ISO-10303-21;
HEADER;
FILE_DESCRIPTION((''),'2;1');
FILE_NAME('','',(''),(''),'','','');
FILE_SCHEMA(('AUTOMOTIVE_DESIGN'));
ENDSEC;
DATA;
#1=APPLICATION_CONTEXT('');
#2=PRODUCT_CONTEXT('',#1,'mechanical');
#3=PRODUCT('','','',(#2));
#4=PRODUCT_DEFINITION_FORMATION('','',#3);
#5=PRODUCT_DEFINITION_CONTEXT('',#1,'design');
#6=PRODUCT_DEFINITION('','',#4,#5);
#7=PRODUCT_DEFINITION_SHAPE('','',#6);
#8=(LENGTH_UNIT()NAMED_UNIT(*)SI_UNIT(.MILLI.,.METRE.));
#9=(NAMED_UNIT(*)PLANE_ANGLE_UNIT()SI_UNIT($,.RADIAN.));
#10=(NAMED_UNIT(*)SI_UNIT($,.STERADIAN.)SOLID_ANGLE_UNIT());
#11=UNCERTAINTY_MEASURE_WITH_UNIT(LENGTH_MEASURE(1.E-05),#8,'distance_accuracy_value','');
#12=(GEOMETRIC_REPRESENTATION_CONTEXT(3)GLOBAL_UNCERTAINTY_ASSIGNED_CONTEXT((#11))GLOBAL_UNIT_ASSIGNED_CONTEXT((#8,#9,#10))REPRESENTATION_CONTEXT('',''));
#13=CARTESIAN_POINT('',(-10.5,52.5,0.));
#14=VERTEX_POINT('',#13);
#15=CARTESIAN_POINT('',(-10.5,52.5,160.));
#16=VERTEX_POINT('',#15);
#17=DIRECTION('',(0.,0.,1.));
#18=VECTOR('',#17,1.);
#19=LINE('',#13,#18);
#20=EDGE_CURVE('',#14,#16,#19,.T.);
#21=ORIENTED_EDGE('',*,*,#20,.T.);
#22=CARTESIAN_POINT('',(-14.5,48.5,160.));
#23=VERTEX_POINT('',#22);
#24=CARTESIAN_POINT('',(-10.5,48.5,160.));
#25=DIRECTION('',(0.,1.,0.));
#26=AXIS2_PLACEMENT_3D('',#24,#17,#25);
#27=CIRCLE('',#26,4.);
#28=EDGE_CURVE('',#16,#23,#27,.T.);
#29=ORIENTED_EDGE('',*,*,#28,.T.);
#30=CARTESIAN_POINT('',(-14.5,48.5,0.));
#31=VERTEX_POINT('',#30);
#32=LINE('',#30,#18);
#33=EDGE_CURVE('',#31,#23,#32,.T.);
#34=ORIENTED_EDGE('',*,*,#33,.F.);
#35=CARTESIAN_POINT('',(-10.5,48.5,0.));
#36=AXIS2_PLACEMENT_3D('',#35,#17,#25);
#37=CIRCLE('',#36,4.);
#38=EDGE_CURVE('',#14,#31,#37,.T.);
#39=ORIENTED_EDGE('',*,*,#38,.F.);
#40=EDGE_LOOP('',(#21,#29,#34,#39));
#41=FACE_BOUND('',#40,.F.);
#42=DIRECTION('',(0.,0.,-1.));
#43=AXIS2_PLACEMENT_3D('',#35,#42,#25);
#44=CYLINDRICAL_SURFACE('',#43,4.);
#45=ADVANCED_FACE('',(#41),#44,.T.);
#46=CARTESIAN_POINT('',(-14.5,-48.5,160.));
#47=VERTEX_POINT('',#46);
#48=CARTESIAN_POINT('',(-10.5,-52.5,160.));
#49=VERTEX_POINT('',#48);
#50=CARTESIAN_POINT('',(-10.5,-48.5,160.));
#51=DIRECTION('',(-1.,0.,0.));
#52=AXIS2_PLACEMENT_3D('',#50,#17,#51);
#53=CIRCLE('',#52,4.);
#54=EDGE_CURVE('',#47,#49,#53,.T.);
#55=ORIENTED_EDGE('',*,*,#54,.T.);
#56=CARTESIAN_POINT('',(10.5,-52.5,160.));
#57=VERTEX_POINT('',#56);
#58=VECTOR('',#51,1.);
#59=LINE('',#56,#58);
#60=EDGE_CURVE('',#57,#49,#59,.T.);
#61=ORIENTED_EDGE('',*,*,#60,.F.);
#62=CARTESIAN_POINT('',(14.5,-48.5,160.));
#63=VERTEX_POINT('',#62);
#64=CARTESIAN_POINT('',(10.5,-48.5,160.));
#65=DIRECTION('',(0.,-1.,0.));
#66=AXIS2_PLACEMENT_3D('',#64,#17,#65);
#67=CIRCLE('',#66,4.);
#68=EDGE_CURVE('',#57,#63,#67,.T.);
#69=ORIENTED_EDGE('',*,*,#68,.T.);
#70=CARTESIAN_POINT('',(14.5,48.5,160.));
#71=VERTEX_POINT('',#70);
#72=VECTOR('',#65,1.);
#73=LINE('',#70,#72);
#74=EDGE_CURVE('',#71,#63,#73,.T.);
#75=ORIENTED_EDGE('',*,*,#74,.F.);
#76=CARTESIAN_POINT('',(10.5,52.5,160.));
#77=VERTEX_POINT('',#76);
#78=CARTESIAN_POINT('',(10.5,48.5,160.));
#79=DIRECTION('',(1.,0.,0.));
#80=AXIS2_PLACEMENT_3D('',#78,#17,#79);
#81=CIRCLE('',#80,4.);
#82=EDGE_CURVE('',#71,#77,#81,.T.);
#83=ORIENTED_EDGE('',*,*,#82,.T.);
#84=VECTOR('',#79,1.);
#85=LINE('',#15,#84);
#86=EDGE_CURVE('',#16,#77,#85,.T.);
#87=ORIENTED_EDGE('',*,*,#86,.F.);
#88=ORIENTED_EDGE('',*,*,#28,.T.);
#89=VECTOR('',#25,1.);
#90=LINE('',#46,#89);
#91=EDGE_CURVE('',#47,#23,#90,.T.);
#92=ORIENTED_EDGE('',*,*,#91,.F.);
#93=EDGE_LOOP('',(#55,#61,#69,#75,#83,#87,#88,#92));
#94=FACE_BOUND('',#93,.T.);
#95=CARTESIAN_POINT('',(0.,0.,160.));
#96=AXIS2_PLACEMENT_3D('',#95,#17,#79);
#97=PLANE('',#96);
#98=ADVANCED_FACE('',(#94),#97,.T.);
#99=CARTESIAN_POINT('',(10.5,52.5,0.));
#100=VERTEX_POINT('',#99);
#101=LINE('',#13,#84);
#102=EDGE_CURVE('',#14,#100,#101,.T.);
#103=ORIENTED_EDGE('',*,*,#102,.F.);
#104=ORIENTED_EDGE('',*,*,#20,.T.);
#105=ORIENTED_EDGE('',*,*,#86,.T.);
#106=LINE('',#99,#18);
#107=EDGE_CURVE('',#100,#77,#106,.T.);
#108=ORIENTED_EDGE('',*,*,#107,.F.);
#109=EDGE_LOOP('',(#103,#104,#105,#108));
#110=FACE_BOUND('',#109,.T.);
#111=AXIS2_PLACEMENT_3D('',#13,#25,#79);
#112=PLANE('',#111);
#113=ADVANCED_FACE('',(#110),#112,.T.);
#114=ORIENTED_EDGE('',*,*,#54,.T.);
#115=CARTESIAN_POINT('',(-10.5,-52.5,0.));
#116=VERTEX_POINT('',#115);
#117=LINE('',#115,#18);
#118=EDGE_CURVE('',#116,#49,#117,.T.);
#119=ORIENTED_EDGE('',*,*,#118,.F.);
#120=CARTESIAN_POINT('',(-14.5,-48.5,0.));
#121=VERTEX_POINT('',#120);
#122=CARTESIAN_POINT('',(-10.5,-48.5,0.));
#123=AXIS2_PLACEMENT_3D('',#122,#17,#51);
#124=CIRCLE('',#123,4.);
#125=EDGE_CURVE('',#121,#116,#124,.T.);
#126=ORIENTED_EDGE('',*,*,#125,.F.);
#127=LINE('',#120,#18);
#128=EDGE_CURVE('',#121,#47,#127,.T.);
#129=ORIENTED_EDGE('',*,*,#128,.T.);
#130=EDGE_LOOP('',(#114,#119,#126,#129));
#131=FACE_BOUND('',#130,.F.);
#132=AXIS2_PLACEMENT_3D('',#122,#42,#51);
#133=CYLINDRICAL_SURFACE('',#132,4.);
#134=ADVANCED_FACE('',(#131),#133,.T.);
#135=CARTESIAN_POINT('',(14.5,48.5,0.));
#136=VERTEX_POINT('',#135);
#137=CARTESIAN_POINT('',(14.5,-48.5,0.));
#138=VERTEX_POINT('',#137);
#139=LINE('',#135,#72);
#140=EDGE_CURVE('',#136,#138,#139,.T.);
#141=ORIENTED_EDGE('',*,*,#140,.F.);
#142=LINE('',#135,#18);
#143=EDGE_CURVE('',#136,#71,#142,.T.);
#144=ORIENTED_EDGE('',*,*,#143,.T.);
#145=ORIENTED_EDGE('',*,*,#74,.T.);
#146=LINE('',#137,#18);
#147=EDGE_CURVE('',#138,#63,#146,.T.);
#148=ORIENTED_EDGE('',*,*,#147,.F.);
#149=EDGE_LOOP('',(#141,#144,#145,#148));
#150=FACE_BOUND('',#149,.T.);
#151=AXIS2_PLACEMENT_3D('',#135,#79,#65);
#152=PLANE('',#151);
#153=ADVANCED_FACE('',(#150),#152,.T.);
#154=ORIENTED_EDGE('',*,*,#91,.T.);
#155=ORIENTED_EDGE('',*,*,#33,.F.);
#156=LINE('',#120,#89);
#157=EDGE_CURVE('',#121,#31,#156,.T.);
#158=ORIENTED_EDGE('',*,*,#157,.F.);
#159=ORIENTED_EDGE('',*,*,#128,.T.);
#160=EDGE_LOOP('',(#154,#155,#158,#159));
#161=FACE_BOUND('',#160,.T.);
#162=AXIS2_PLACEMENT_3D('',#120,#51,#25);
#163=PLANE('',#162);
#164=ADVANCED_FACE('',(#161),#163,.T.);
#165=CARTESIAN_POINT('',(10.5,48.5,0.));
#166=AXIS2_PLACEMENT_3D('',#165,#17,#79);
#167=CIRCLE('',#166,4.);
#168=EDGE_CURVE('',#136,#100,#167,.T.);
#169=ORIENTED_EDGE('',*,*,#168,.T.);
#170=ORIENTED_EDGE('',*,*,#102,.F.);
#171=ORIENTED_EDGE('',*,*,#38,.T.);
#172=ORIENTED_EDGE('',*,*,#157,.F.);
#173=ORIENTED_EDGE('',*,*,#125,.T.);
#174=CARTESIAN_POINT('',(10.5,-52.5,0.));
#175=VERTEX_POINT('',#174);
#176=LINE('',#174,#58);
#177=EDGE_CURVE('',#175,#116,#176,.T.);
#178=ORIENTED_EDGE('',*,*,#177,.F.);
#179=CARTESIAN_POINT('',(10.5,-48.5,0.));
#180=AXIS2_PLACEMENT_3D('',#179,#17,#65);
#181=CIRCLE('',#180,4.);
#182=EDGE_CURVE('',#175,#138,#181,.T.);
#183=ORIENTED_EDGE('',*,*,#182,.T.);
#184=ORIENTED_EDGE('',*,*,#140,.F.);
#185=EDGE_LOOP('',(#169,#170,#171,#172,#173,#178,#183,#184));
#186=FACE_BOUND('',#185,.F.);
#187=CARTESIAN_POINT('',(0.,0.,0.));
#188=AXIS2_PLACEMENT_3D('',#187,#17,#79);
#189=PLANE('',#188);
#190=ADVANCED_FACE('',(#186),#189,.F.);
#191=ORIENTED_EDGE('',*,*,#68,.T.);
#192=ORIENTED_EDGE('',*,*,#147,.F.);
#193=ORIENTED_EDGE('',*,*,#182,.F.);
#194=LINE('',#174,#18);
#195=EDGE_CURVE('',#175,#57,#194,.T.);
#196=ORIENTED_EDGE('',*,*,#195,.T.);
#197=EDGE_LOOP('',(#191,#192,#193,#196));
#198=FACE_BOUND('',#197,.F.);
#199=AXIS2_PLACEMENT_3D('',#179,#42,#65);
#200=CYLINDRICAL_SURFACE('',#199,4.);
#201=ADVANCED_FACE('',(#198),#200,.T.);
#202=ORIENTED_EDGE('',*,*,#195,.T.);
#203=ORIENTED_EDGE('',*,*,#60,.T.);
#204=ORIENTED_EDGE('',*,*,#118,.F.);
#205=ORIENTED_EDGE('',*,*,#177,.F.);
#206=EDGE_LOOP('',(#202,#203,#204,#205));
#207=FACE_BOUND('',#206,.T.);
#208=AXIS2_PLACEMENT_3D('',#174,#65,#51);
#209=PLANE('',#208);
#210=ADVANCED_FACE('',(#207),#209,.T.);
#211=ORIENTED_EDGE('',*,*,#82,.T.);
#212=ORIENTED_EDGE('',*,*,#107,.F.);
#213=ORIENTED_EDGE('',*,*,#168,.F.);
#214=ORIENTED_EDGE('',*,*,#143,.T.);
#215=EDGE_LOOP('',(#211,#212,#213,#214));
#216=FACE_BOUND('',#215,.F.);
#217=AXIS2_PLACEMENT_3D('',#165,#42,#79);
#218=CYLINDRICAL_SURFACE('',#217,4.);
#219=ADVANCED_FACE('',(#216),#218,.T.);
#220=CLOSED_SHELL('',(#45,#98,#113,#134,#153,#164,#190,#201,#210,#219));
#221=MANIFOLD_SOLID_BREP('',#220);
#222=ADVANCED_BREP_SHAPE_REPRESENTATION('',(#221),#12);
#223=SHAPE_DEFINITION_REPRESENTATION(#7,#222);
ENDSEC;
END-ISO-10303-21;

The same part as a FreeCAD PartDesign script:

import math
import FreeCAD as App
import Part
import Sketcher
from FreeCAD import Vector
Q = App.Units.Quantity

doc = App.newDocument("Part")
params = doc.addObject("Spreadsheet::Sheet", "Params")
for row, (alias, value) in enumerate([
    ("sketch1_radius", "4 mm"),
    ("sketch1_height", "97 mm"),
    ("pad1_length", "160 mm"),
], start=1):
    params.set(f"A{row}", alias)
    params.set(f"B{row}", "=" + value)
    params.setAlias(f"B{row}", alias)

body = doc.addObject("PartDesign::Body", "Body")

# Sketch on XY plane
sketch1 = doc.addObject("Sketcher::SketchObject", "Sketch")
body.addObject(sketch1)
sketch1.AttachmentSupport = (doc.XY_Plane, [""])
sketch1.MapMode = "FlatFace"
sketch1.addGeometry(Part.LineSegment(Vector(10.5, 52.5, 0), Vector(-10.5, 52.5, 0)), False)
sketch1.addGeometry(Part.ArcOfCircle(Part.Circle(Vector(-10.5, 48.5, 0), Vector(0, 0, 1), 4), math.radians(90), math.radians(180)), False)
sketch1.addGeometry(Part.LineSegment(Vector(-14.5, 48.5, 0), Vector(-14.5, -48.5, 0)), False)
sketch1.addGeometry(Part.ArcOfCircle(Part.Circle(Vector(-10.5, -48.5, 0), Vector(0, 0, 1), 4), math.radians(180), math.radians(270)), False)
sketch1.addGeometry(Part.LineSegment(Vector(-10.5, -52.5, 0), Vector(10.5, -52.5, 0)), False)
sketch1.addGeometry(Part.ArcOfCircle(Part.Circle(Vector(10.5, -48.5, 0), Vector(0, 0, 1), 4), math.radians(-90), math.radians(0)), False)
sketch1.addGeometry(Part.LineSegment(Vector(14.5, -48.5, 0), Vector(14.5, 48.5, 0)), False)
sketch1.addGeometry(Part.ArcOfCircle(Part.Circle(Vector(10.5, 48.5, 0), Vector(0, 0, 1), 4), math.radians(0), math.radians(90)), False)
sketch1.addConstraint(Sketcher.Constraint("Tangent", 0, 2, 1, 1))
sketch1.addConstraint(Sketcher.Constraint("Tangent", 1, 2, 2, 1))
sketch1.addConstraint(Sketcher.Constraint("Tangent", 2, 2, 3, 1))
sketch1.addConstraint(Sketcher.Constraint("Tangent", 3, 2, 4, 1))
sketch1.addConstraint(Sketcher.Constraint("Tangent", 4, 2, 5, 1))
sketch1.addConstraint(Sketcher.Constraint("Tangent", 5, 2, 6, 1))
sketch1.addConstraint(Sketcher.Constraint("Tangent", 6, 2, 7, 1))
sketch1.addConstraint(Sketcher.Constraint("Tangent", 7, 2, 0, 1))
sketch1.addConstraint(Sketcher.Constraint("Horizontal", 0))
sketch1.addConstraint(Sketcher.Constraint("Vertical", 2))
sketch1.addConstraint(Sketcher.Constraint("Horizontal", 4))
sketch1.addConstraint(Sketcher.Constraint("Vertical", 6))
sketch1.addConstraint(Sketcher.Constraint("Equal", 1, 3))
sketch1.addConstraint(Sketcher.Constraint("Equal", 3, 5))
sketch1.addConstraint(Sketcher.Constraint("Equal", 5, 7))
sketch1.addConstraint(Sketcher.Constraint("Symmetric", 1, 3, 5, 3, -1, 1))
sketch1.addConstraint(Sketcher.Constraint("Radius", 1, Q("4 mm")))
sketch1.addConstraint(Sketcher.Constraint("DistanceX", 2, 2, 5, 2, Q("29 mm")))
sketch1.addConstraint(Sketcher.Constraint("DistanceY", 2, 2, 2, 1, Q("97 mm")))
sketch1.setExpression("Constraints[16]", "Params.sketch1_radius")
sketch1.setExpression("Constraints[18]", "Params.sketch1_height")
pad1 = doc.addObject("PartDesign::Pad", "Pad")
body.addObject(pad1)
pad1.Profile = sketch1
pad1.setExpression("Length", "Params.pad1_length")

doc.recompute()
